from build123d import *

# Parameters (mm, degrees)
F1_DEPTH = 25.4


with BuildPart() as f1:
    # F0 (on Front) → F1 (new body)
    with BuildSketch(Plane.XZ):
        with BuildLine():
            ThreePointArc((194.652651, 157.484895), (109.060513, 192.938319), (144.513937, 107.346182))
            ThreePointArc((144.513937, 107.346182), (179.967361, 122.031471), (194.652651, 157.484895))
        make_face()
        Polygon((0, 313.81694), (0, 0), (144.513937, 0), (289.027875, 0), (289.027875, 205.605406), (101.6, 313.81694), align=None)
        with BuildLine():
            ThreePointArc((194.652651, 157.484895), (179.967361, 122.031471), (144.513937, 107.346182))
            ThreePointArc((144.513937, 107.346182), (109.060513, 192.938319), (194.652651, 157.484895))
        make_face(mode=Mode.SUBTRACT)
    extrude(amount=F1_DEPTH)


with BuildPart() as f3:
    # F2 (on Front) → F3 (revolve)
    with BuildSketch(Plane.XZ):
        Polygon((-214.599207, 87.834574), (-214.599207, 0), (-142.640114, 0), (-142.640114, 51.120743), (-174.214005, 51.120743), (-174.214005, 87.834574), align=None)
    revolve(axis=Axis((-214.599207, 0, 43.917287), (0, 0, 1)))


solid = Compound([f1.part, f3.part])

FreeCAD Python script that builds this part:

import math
import FreeCAD as App
import Part
import Sketcher

V = App.Vector
Q = App.Units.Quantity


def add_polygon(sketch, points):
    """Adds a closed chain of lines whose ends are joined by coincident constraints."""
    first, n = sketch.GeometryCount, len(points)
    for a, b in zip(points, points[1:] + points[:1]):
        sketch.addGeometry(Part.LineSegment(App.Vector(*a, 0), App.Vector(*b, 0)), False)
    for i in range(n):
        sketch.addConstraint(Sketcher.Constraint("Coincident", first + i, 2, first + (i + 1) % n, 1))

doc = App.newDocument("Part")
params = doc.addObject("Spreadsheet::Sheet", "Params")
for row, (alias, value) in enumerate([
    ("sketch1_width", "4 in"),
    ("pad1_length", "1 in"),
    ("revolution_angle", "360 deg"),
], start=1):
    params.set(f"A{row}", alias)
    params.set(f"B{row}", "=" + value)
    params.setAlias(f"B{row}", alias)

body = doc.addObject("PartDesign::Body", "Body")

# Sketch on XZ plane
sketch1 = body.newObject("Sketcher::SketchObject", "Sketch")
sketch1.AttachmentSupport = (doc.getObject("XZ_Plane"), [""])
sketch1.MapMode = "FlatFace"
add_polygon(sketch1, [(0, 314), (0, 0), (289, 0), (289, 206), (102, 314)])  # lines 0-4
sketch1.addGeometry(Part.ArcOfCircle(Part.Circle(V(145, 157, 0), V(0, 0, 1), 50), math.radians(0), math.radians(270)), False)  # 5
sketch1.addGeometry(Part.ArcOfCircle(Part.Circle(V(145, 157, 0), V(0, 0, 1), 50), math.radians(-90), math.radians(0)), False)  # 6
sketch1.addConstraint([
    Sketcher.Constraint("Tangent", 5, 1, 6, 2),
    Sketcher.Constraint("Coincident", 6, 1, 5, 2),
    Sketcher.Constraint("Vertical", 0),
    Sketcher.Constraint("Horizontal", 1),
    Sketcher.Constraint("Vertical", 2),
    Sketcher.Constraint("Horizontal", 4),
    Sketcher.Constraint("Coincident", 0, 2, -1, 1),
    Sketcher.Constraint("Horizontal", 6, 3, 5, 1),
    Sketcher.Constraint("Vertical", 5, 3, 6, 1),
    Sketcher.Constraint("DistanceX", 4, 2, 4, 1, Q("4 in")),
    Sketcher.Constraint("Angle", 3, Q("150 deg")),
    Sketcher.Constraint("Radius", 5, 50.138713),
    Sketcher.Constraint("DistanceY", 0, 2, 0, 1, 313.81694),
    Sketcher.Constraint("Distance", 3, 216.423068),
    Sketcher.Constraint("DistanceX", -1, 1, 5, 1, 194.652651),
    Sketcher.Constraint("DistanceY", -1, 1, 6, 1, 107.346182),
])
sketch1.setExpression("Constraints[14]", "Params.sketch1_width")
pad1 = body.newObject("PartDesign::Pad", "Pad")
pad1.Profile = sketch1
pad1.setExpression("Length", "Params.pad1_length")
body2 = doc.addObject("PartDesign::Body", "Body001")

# Sketch on XZ plane
sketch2 = body2.newObject("Sketcher::SketchObject", "Sketch001")
sketch2.AttachmentSupport = (doc.getObject("XZ_Plane001"), [""])
sketch2.MapMode = "FlatFace"
add_polygon(sketch2, [(-215, 88), (-215, 0), (-143, 0), (-143, 51), (-174, 51), (-174, 88)])  # lines 0-5
sketch2.addGeometry(Part.LineSegment(V(-215, 0, 0), V(-215, 88, 0)), True)  # axis
sketch2.addConstraint([
    Sketcher.Constraint("Vertical", 0),
    Sketcher.Constraint("Horizontal", 1),
    Sketcher.Constraint("Vertical", 2),
    Sketcher.Constraint("Horizontal", 3),
    Sketcher.Constraint("Vertical", 4),
    Sketcher.Constraint("Horizontal", 5),
    Sketcher.Constraint("Vertical", 6),
    Sketcher.Constraint("Coincident", 6, 1, 0, 2),
    Sketcher.Constraint("PointOnObject", 0, 2, -1),
    Sketcher.Constraint("Horizontal", 4, 2, 6, 2),
    Sketcher.Constraint("DistanceX", 3, 2, 3, 1, 31.573891),
    Sketcher.Constraint("DistanceY", 4, 1, 4, 2, 36.713831),
    Sketcher.Constraint("DistanceX", 1, 1, 1, 2, 71.959093),
    Sketcher.Constraint("DistanceY", 0, 2, 0, 1, 87.834574),
    Sketcher.Constraint("DistanceX", 0, 2, -1, 1, 214.599207),
])
revolution = body2.newObject("PartDesign::Revolution", "Revolution")
revolution.Profile = sketch2
revolution.ReferenceAxis = (sketch2, ["Axis0"])
revolution.setExpression("Angle", "Params.revolution_angle")

doc.recompute()
